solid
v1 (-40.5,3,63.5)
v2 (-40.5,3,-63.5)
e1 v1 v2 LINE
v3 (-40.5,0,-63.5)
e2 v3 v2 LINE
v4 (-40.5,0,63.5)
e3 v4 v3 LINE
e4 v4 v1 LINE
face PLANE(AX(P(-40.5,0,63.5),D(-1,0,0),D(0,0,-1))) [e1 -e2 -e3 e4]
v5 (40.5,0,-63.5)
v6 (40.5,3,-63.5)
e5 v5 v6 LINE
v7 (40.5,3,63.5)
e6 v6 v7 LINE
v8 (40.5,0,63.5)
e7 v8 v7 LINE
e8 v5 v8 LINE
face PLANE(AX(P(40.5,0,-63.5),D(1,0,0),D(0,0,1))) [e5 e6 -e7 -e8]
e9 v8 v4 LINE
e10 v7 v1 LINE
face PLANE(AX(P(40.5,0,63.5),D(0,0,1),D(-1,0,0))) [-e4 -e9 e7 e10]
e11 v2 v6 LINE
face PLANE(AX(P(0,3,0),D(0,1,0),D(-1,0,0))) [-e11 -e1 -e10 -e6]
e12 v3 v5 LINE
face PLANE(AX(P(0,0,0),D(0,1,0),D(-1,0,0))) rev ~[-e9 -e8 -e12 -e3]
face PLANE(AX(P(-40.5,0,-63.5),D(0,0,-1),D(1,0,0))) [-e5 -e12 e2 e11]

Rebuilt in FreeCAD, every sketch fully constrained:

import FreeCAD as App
import Part
import Sketcher

V = App.Vector


def add_polygon(sketch, points):
    """Adds a closed chain of lines whose ends are joined by coincident constraints."""
    first, n = sketch.GeometryCount, len(points)
    for a, b in zip(points, points[1:] + points[:1]):
        sketch.addGeometry(Part.LineSegment(App.Vector(*a, 0), App.Vector(*b, 0)), False)
    for i in range(n):
        sketch.addConstraint(Sketcher.Constraint("Coincident", first + i, 2, first + (i + 1) % n, 1))

doc = App.newDocument("Part")
body = doc.addObject("PartDesign::Body", "Body")

sketch1 = body.newObject("Sketcher::SketchObject", "Sketch")
sketch1.AttachmentSupport = (doc.getObject("XZ_Plane"), [""])
sketch1.MapMode = "FlatFace"
add_polygon(sketch1, [(-40.5, 63.5), (40.5, 63.5), (40.5, -63.5), (-40.5, -63.5)])
sketch1.addConstraint([
    Sketcher.Constraint("Horizontal", 0),
    Sketcher.Constraint("Vertical", 1),
    Sketcher.Constraint("Horizontal", 2),
    Sketcher.Constraint("Vertical", 3),
    Sketcher.Constraint("Symmetric", 0, 2, 2, 2, -1, 1),
    Sketcher.Constraint("DistanceX", 0, 1, 0, 2, 81.0),
    Sketcher.Constraint("DistanceY", 1, 2, 1, 1, 127.0),
])
pad1 = body.newObject("PartDesign::Pad", "Pad")
pad1.Profile = sketch1
pad1.Length = 3
pad1.Reversed = True

doc.recompute()
